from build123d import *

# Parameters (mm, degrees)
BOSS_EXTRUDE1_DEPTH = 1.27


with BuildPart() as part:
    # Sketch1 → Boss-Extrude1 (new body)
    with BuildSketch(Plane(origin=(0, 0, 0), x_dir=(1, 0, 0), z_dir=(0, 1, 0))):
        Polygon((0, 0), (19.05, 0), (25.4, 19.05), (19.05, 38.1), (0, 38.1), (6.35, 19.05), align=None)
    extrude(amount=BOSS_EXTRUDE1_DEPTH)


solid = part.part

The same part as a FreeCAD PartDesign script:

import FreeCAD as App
import Part
import Sketcher
Q = App.Units.Quantity


def add_polygon(sketch, points):
    """Adds a closed chain of lines whose ends are joined by coincident constraints."""
    first, n = sketch.GeometryCount, len(points)
    for a, b in zip(points, points[1:] + points[:1]):
        sketch.addGeometry(Part.LineSegment(App.Vector(*a, 0), App.Vector(*b, 0)), False)
    for i in range(n):
        sketch.addConstraint(Sketcher.Constraint("Coincident", first + i, 2, first + (i + 1) % n, 1))

doc = App.newDocument("Part")
body = doc.addObject("PartDesign::Body", "Body")

sketch1 = body.newObject("Sketcher::SketchObject", "Sketch")
sketch1.AttachmentSupport = (doc.getObject("XZ_Plane"), [""])
sketch1.MapMode = "FlatFace"
add_polygon(sketch1, [(0, 0), (19, 0), (25, -19), (19, -38), (0, -38), (6, -19)])
sketch1.addConstraint([
    Sketcher.Constraint("Horizontal", 0),
    Sketcher.Constraint("Horizontal", 3),
    Sketcher.Constraint("Coincident", 5, 2, -1, 1),
    Sketcher.Constraint("PointOnObject", 3, 2, -2),
    Sketcher.Constraint("Parallel", 2, 4),
    Sketcher.Constraint("Parallel", 1, 5),
    Sketcher.Constraint("Horizontal", 1, 2, 4, 2),
    Sketcher.Constraint("Equal", 1, 2),
    Sketcher.Constraint("DistanceX", -1, 1, 1, 2, Q("1 in")),
    Sketcher.Constraint("DistanceX", 0, 1, 0, 2, Q("0.75 in")),
    Sketcher.Constraint("DistanceY", 2, 2, -1, 1, Q("1.5 in")),
])
pad1 = body.newObject("PartDesign::Pad", "Pad")
pad1.Profile = sketch1
pad1.Length = Q("0.05 in")
pad1.Reversed = True

doc.recompute()
